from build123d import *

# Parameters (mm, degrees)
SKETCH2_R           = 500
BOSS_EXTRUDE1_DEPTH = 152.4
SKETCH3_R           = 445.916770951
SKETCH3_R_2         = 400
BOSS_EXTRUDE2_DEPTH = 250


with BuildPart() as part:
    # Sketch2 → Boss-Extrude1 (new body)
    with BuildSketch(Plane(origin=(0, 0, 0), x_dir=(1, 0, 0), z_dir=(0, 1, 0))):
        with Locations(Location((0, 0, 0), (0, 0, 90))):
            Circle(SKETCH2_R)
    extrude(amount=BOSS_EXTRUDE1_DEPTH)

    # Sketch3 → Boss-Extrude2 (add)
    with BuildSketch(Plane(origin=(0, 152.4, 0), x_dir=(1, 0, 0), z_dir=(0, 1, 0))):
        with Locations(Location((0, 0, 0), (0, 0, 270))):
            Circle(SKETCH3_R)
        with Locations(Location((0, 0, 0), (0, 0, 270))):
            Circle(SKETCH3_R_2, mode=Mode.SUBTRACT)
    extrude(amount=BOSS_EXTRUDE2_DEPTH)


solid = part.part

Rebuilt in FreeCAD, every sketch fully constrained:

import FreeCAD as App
import Part
import Sketcher
Q = App.Units.Quantity

doc = App.newDocument("Part")
body = doc.addObject("PartDesign::Body", "Body")

sketch1 = doc.addObject("Sketcher::SketchObject", "Sketch")
body.addObject(sketch1)
sketch1.AttachmentSupport = (doc.XZ_Plane, [""])
sketch1.MapMode = "FlatFace"
sketch1.addGeometry(Part.Circle(App.Vector(0, 0, 0), App.Vector(0, 0, 1), 500), False)
sketch1.addConstraint(Sketcher.Constraint("Coincident", 0, 3, -1, 1))
sketch1.addConstraint(Sketcher.Constraint("Diameter", 0, Q("1000 mm")))
pad1 = doc.addObject("PartDesign::Pad", "Pad")
body.addObject(pad1)
pad1.Profile = sketch1
pad1.Length = 152.4
pad1.Reversed = True

sketch2 = doc.addObject("Sketcher::SketchObject", "Sketch001")
body.addObject(sketch2)
sketch2.AttachmentSupport = (doc.XZ_Plane, [""])
sketch2.MapMode = "FlatFace"
sketch2.AttachmentOffset = App.Placement(App.Vector(0, 0, -152.4), App.Rotation())
sketch2.addGeometry(Part.Circle(App.Vector(0, 0, 0), App.Vector(0, 0, 1), 446), False)
sketch2.addGeometry(Part.Circle(App.Vector(0, 0, 0), App.Vector(0, 0, 1), 400), False)
sketch2.addConstraint(Sketcher.Constraint("Coincident", 0, 3, -1, 1))
sketch2.addConstraint(Sketcher.Constraint("Coincident", 1, 3, -1, 1))
sketch2.addConstraint(Sketcher.Constraint("Diameter", 1, Q("800 mm")))
sketch2.addConstraint(Sketcher.Constraint("Diameter", 0, Q("891.833542 mm")))
pad2 = doc.addObject("PartDesign::Pad", "Pad001")
body.addObject(pad2)
pad2.Profile = sketch2
pad2.Length = 250
pad2.Reversed = True

doc.recompute()
